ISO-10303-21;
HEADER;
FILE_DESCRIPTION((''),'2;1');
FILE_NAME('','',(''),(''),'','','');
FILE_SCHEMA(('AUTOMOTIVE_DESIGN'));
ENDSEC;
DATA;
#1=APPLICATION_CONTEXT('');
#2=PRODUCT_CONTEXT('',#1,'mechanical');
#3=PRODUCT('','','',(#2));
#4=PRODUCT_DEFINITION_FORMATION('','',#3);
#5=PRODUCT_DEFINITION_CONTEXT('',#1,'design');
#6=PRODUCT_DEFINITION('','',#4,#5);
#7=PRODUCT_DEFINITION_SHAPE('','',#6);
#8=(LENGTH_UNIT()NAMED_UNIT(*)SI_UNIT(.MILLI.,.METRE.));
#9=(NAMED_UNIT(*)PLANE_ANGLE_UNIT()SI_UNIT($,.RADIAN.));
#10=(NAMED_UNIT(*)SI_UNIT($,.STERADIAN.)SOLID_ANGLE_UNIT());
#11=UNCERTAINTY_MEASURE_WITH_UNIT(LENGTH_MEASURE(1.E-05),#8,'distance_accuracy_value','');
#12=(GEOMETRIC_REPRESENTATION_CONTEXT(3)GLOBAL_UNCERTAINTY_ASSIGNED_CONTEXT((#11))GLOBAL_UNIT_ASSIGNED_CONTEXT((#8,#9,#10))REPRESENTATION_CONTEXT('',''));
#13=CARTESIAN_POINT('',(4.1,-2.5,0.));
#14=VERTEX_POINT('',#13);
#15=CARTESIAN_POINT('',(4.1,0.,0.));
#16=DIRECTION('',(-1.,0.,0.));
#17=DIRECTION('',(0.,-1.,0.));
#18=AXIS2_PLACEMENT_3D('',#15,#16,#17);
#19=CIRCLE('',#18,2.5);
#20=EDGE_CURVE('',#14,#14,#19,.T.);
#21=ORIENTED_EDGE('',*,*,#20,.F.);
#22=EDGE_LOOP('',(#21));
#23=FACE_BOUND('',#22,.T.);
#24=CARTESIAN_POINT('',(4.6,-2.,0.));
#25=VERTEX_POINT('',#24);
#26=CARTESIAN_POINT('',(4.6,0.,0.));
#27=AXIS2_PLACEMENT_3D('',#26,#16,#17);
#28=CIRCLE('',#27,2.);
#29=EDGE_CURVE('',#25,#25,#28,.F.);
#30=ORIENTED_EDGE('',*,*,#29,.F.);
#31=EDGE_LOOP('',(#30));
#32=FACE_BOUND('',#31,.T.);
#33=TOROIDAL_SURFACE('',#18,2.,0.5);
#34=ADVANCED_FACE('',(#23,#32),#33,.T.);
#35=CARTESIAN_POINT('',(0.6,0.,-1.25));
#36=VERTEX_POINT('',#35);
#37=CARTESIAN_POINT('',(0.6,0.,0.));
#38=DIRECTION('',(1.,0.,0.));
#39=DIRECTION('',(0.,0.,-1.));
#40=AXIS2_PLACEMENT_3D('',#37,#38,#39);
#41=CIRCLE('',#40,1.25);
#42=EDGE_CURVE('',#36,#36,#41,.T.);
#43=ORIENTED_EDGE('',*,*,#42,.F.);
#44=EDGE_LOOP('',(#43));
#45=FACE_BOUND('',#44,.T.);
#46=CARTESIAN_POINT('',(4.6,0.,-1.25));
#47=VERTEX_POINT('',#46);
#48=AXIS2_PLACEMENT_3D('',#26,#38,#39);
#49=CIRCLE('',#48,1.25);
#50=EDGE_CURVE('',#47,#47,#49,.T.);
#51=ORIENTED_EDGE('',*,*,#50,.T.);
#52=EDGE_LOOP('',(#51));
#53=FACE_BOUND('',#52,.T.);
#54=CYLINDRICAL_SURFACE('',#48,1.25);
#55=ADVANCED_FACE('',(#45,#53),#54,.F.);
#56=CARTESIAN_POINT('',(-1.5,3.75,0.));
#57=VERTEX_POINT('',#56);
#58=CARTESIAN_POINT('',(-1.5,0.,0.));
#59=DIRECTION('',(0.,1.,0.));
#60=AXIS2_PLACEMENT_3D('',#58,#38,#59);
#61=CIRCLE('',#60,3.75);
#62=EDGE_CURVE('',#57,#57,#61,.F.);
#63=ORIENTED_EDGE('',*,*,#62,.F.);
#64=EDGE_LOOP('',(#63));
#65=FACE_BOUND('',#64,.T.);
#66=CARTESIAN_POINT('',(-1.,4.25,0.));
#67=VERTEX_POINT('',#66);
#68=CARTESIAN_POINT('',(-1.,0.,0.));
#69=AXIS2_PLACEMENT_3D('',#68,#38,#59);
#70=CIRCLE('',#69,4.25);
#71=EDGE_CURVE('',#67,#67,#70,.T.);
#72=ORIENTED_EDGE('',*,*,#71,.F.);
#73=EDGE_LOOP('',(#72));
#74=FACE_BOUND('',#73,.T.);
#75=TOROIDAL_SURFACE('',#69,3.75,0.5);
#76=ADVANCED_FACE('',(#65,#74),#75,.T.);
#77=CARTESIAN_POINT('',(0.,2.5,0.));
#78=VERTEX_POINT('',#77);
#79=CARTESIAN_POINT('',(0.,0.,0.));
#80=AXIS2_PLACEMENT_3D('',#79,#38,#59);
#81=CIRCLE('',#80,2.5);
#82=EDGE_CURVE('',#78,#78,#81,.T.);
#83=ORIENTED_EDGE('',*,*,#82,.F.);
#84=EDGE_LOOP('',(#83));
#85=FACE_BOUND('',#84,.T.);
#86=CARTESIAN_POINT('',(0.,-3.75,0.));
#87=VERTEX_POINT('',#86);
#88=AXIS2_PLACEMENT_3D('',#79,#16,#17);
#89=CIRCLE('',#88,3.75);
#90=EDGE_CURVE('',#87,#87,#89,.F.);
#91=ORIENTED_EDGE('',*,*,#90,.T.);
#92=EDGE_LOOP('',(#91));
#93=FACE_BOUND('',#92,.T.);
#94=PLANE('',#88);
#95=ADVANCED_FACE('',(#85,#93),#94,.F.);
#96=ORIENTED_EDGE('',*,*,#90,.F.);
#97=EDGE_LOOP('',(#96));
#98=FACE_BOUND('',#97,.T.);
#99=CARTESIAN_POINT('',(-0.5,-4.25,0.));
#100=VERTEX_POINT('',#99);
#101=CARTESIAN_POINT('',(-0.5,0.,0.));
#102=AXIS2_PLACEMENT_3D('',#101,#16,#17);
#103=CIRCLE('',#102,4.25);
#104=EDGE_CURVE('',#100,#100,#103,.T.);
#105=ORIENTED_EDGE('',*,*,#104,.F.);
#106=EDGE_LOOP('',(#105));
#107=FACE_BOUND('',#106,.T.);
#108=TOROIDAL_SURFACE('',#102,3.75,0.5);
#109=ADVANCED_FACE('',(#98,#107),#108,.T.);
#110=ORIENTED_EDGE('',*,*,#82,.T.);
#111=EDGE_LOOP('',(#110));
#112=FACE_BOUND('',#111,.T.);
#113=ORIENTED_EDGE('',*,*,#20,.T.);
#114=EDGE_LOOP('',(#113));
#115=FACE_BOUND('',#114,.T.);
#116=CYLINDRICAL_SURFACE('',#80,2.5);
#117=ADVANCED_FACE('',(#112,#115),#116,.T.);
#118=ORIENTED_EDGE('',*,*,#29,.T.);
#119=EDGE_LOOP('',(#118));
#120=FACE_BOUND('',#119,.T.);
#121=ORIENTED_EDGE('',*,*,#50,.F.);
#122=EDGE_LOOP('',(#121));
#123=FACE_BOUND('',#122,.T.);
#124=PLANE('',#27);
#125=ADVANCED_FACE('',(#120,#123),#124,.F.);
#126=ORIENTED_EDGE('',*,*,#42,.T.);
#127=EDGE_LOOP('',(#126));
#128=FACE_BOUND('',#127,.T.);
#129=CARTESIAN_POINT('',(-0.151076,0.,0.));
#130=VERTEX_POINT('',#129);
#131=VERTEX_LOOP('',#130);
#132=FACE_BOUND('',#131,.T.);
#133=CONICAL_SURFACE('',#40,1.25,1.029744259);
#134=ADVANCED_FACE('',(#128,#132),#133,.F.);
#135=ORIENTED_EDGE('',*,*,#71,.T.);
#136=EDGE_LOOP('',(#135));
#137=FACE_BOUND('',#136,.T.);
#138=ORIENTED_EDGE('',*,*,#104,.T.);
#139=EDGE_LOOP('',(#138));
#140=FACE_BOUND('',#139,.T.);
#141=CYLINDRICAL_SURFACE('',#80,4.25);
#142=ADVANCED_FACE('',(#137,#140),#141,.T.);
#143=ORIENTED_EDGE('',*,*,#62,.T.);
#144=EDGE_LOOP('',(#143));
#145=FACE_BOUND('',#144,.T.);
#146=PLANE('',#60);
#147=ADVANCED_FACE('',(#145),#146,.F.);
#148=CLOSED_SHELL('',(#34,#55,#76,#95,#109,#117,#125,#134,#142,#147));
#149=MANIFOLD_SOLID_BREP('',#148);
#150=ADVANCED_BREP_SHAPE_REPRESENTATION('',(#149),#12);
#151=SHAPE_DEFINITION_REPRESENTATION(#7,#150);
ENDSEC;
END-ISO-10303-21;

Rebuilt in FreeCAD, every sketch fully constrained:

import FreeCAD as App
import Part
import Sketcher
from FreeCAD import Vector


def edges_at(feature, points):
    """Names of the edges that pass closest to the given points."""
    edges = feature.Shape.Edges
    near = lambda p: min(range(len(edges)), key=lambda i: edges[i].distToShape(Part.Vertex(*p))[0])
    return sorted({f"Edge{near(p) + 1}" for p in points})


def add_polygon(sketch, points):
    """Adds a closed chain of lines whose ends are joined by coincident constraints."""
    first, n = sketch.GeometryCount, len(points)
    for a, b in zip(points, points[1:] + points[:1]):
        sketch.addGeometry(Part.LineSegment(App.Vector(*a, 0), App.Vector(*b, 0)), False)
    for i in range(n):
        sketch.addConstraint(Sketcher.Constraint("Coincident", first + i, 2, first + (i + 1) % n, 1))

doc = App.newDocument("Part")
body = doc.addObject("PartDesign::Body", "Body")

# Sketch on XY plane
sketch1 = body.newObject("Sketcher::SketchObject", "Sketch")
sketch1.AttachmentSupport = (doc.getObject("XY_Plane"), [""])
sketch1.MapMode = "FlatFace"
add_polygon(sketch1, [(-1.5, 4.25), (-1.5, 0), (4.6, 0), (4.6, 2.5), (0, 2.5), (0, 4.25)])  # lines 0-5
sketch1.addConstraint(Sketcher.Constraint("Vertical", 0))
sketch1.addConstraint(Sketcher.Constraint("Horizontal", 1))
sketch1.addConstraint(Sketcher.Constraint("Vertical", 2))
sketch1.addConstraint(Sketcher.Constraint("Horizontal", 3))
sketch1.addConstraint(Sketcher.Constraint("Vertical", 4))
sketch1.addConstraint(Sketcher.Constraint("Horizontal", 5))
sketch1.addConstraint(Sketcher.Constraint("PointOnObject", 0, 2, -1))
sketch1.addConstraint(Sketcher.Constraint("PointOnObject", 3, 2, -2))
sketch1.addConstraint(Sketcher.Constraint("DistanceX", 1, 1, 1, 2, 6.1))
sketch1.addConstraint(Sketcher.Constraint("DistanceX", 3, 2, 3, 1, 4.6))
sketch1.addConstraint(Sketcher.Constraint("DistanceY", 2, 1, 2, 2, 2.5))
sketch1.addConstraint(Sketcher.Constraint("DistanceY", 0, 2, 0, 1, 4.25))
revolution = body.newObject("PartDesign::Revolution", "Revolution")
revolution.Profile = sketch1
revolution.ReferenceAxis = (sketch1, ["H_Axis"])
revolution.Angle = 360
doc.recompute()

fillet = body.newObject("PartDesign::Fillet", "Fillet")
fillet.Base = (revolution, edges_at(revolution, [(4.6, -2.5, 0), (-1.5, -4.25, 0), (0, -4.25, 0)]))
fillet.Radius = 0.5

# Sketch on YZ plane
sketch2 = body.newObject("Sketcher::SketchObject", "Sketch001")
sketch2.AttachmentSupport = (doc.getObject("YZ_Plane"), [""])
sketch2.MapMode = "FlatFace"
sketch2.AttachmentOffset = App.Placement(Vector(0, 0, 4.6), App.Rotation())
sketch2.addGeometry(Part.Circle(Vector(0, 0, 0), Vector(0, 0, 1), 1.25), False)
sketch2.addConstraint(Sketcher.Constraint("Coincident", 0, 3, -1, 1))
sketch2.addConstraint(Sketcher.Constraint("Diameter", 0, 2.5))
doc.recompute()
hole = body.newObject("PartDesign::Hole", "Hole")
hole.Profile = sketch2
hole.ThreadType = "None"
hole.Diameter = 2.5
hole.DepthType = "Dimension"
hole.Depth = 4
hole.DrillPoint = "Angled"
hole.DrillPointAngle = 118

doc.recompute()
